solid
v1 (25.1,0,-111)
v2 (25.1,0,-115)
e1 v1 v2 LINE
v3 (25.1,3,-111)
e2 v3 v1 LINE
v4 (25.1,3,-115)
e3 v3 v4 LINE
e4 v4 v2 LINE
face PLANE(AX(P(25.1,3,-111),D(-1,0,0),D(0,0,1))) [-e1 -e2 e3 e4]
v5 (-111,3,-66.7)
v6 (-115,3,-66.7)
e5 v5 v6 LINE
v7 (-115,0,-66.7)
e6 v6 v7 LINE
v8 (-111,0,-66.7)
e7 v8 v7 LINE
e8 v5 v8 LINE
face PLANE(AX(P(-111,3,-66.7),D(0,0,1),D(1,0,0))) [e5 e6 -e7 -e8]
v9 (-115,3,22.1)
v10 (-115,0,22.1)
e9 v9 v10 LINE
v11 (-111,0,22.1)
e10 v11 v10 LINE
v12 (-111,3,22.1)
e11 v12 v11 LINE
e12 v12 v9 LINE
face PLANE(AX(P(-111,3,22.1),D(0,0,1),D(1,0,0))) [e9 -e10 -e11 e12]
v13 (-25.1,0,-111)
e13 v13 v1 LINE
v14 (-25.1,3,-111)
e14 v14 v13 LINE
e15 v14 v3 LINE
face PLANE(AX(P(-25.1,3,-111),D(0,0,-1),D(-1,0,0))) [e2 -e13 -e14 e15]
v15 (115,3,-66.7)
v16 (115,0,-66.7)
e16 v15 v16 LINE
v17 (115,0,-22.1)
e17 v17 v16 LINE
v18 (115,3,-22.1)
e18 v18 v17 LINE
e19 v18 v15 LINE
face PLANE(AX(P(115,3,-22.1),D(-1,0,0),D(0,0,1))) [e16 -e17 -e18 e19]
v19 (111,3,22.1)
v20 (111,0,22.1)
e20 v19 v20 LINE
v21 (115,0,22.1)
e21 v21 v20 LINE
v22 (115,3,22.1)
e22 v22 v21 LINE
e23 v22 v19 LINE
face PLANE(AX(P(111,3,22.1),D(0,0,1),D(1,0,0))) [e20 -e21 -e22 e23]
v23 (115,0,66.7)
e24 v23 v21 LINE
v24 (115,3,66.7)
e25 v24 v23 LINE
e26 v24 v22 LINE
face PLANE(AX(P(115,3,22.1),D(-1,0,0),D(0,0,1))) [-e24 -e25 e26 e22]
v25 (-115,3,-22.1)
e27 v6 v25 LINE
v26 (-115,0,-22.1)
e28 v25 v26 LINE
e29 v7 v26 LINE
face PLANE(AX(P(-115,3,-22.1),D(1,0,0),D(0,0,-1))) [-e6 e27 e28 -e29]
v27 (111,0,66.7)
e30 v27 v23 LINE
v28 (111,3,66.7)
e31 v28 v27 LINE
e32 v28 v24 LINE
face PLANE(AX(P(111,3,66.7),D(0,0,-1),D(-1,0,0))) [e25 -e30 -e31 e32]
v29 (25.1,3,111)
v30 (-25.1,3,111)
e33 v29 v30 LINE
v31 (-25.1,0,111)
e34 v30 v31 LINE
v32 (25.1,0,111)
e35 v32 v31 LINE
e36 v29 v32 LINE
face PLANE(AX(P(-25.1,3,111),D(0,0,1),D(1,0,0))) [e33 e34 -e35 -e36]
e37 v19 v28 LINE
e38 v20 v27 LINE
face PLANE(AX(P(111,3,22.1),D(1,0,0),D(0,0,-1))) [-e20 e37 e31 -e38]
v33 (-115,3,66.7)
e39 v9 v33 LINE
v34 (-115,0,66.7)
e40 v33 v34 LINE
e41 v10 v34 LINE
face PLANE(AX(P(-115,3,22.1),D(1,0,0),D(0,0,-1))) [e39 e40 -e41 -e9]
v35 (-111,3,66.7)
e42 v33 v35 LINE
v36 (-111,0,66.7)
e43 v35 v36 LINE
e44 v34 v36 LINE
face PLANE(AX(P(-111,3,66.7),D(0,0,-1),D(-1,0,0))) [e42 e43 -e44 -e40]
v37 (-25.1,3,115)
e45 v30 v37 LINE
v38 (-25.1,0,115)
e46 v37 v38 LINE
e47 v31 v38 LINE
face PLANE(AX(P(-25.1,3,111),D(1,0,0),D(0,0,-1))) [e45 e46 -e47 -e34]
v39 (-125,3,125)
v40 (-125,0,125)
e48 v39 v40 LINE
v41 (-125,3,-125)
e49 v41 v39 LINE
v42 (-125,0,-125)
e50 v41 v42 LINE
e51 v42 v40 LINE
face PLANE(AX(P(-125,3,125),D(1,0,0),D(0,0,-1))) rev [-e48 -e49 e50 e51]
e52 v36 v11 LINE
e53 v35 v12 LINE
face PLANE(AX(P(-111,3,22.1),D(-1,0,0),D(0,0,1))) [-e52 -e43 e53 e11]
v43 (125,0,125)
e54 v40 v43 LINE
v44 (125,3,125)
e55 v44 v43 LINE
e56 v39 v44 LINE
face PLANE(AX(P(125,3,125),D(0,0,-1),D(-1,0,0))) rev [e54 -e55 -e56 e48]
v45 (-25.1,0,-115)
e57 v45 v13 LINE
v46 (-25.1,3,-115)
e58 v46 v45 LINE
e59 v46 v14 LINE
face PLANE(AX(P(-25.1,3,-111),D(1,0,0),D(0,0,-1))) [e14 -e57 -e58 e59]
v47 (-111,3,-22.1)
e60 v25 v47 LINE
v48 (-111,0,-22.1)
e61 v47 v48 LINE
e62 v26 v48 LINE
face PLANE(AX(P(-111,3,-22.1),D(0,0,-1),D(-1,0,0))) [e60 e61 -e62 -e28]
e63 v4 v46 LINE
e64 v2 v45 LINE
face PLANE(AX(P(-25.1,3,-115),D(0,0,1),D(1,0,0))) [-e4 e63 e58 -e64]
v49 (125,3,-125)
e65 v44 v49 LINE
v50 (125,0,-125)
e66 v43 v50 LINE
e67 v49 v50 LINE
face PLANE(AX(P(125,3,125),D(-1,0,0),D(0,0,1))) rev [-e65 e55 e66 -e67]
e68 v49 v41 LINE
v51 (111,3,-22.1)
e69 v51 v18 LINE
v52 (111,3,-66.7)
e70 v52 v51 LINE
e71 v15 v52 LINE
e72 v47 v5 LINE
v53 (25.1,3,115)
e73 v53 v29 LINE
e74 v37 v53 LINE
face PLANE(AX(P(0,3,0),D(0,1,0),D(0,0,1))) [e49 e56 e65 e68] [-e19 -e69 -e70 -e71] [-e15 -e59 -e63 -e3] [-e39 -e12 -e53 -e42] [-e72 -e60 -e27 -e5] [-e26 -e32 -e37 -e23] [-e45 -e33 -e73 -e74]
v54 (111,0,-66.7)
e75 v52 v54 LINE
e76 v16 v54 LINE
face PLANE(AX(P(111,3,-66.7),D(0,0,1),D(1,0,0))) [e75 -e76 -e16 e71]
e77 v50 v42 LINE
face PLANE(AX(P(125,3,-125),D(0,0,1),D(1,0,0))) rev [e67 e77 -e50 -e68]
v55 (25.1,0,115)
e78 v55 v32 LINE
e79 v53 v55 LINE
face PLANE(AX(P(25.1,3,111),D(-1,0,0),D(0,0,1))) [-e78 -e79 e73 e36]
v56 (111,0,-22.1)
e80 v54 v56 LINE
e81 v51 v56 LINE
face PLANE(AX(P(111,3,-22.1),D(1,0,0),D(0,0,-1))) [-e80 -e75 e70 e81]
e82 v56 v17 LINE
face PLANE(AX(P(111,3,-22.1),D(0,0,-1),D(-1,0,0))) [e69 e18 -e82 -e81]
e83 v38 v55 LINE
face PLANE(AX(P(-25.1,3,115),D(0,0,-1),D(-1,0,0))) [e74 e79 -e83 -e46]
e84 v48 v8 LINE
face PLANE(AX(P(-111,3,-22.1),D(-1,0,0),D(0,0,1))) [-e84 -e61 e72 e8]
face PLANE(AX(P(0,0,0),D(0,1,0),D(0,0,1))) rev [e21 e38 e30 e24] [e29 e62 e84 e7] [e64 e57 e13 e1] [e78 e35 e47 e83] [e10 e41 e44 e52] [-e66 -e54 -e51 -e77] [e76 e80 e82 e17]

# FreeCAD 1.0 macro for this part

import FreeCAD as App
import Part
import Sketcher

V = App.Vector


def add_polygon(sketch, points):
    """Adds a closed chain of lines whose ends are joined by coincident constraints."""
    first, n = sketch.GeometryCount, len(points)
    for a, b in zip(points, points[1:] + points[:1]):
        sketch.addGeometry(Part.LineSegment(App.Vector(*a, 0), App.Vector(*b, 0)), False)
    for i in range(n):
        sketch.addConstraint(Sketcher.Constraint("Coincident", first + i, 2, first + (i + 1) % n, 1))

doc = App.newDocument("Part")
params = doc.addObject("Spreadsheet::Sheet", "Params")
for row, (alias, value) in enumerate([
    ("sketch1_width", "250 mm"),
    ("sketch1_width2", "4 mm"),
    ("sketch1_width3", "50.2 mm"),
    ("sketch1_height", "44.6 mm"),
    ("pad1_length", "3 mm"),
], start=1):
    params.set(f"A{row}", alias)
    params.set(f"B{row}", "=" + value)
    params.setAlias(f"B{row}", alias)

body = doc.addObject("PartDesign::Body", "Body")

sketch1 = body.newObject("Sketcher::SketchObject", "Sketch")
sketch1.AttachmentSupport = (doc.getObject("XZ_Plane"), [""])
sketch1.MapMode = "FlatFace"
add_polygon(sketch1, [(-125, -125), (-125, 125), (125, 125), (125, -125)])
add_polygon(sketch1, [(-111, 66.7), (-115, 66.7), (-115, 22.1), (-111, 22.1)])
add_polygon(sketch1, [(25.1, 115), (-25.1, 115), (-25.1, 111), (25.1, 111)])
add_polygon(sketch1, [(115, 66.7), (111, 66.7), (111, 22.1), (115, 22.1)])
add_polygon(sketch1, [(-111, -22.1), (-115, -22.1), (-115, -66.7), (-111, -66.7)])
add_polygon(sketch1, [(115, -22.1), (111, -22.1), (111, -66.7), (115, -66.7)])
add_polygon(sketch1, [(25.1, -111), (-25.1, -111), (-25.1, -115), (25.1, -115)])
sketch1.addConstraint([
    Sketcher.Constraint("Vertical", 0),
    Sketcher.Constraint("Horizontal", 1),
    Sketcher.Constraint("Vertical", 2),
    Sketcher.Constraint("Horizontal", 3),
    Sketcher.Constraint("Horizontal", 4),
    Sketcher.Constraint("Vertical", 5),
    Sketcher.Constraint("Horizontal", 6),
    Sketcher.Constraint("Vertical", 7),
    Sketcher.Constraint("Horizontal", 8),
    Sketcher.Constraint("Vertical", 9),
    Sketcher.Constraint("Horizontal", 10),
    Sketcher.Constraint("Vertical", 11),
    Sketcher.Constraint("Horizontal", 12),
    Sketcher.Constraint("Vertical", 13),
    Sketcher.Constraint("Horizontal", 14),
    Sketcher.Constraint("Vertical", 15),
    Sketcher.Constraint("Horizontal", 16),
    Sketcher.Constraint("Vertical", 17),
    Sketcher.Constraint("Horizontal", 18),
    Sketcher.Constraint("Vertical", 19),
    Sketcher.Constraint("Horizontal", 20),
    Sketcher.Constraint("Vertical", 21),
    Sketcher.Constraint("Horizontal", 22),
    Sketcher.Constraint("Vertical", 23),
    Sketcher.Constraint("Horizontal", 24),
    Sketcher.Constraint("Vertical", 25),
    Sketcher.Constraint("Horizontal", 26),
    Sketcher.Constraint("Vertical", 27),
    Sketcher.Constraint("Symmetric", 0, 2, 2, 2, -1, 1),
    Sketcher.Constraint("Symmetric", 14, 2, 16, 2, -1, 1),
    Sketcher.Constraint("Symmetric", 12, 2, 18, 2, -1, 1),
    Sketcher.Constraint("Symmetric", 6, 2, 20, 2, -1, 1),
    Sketcher.Constraint("Symmetric", 4, 2, 22, 2, -1, 1),
    Sketcher.Constraint("Symmetric", 10, 2, 24, 2, -1, 1),
    Sketcher.Constraint("Symmetric", 8, 2, 26, 2, -1, 1),
    Sketcher.Constraint("Symmetric", 7, 2, 12, 2, -2),
    Sketcher.Constraint("Symmetric", 5, 2, 14, 2, -2),
    Sketcher.Constraint("Vertical", 9, 2, 24, 2),
    Sketcher.Constraint("Equal", 3, 0),
    Sketcher.Constraint("Equal", 22, 9),
    Sketcher.Constraint("DistanceX", 1, 1, 1, 2, 250.0),
    Sketcher.Constraint("DistanceX", 4, 2, 4, 1, 4.0),
    Sketcher.Constraint("DistanceX", 8, 2, 8, 1, 50.2),
    Sketcher.Constraint("DistanceY", 5, 2, 5, 1, 44.6),
    Sketcher.Constraint("DistanceX", 4, 2, -1, 1, 115.0),
    Sketcher.Constraint("DistanceY", -1, 1, 8, 2, 115.0),
    Sketcher.Constraint("DistanceY", -1, 1, 4, 2, 66.7),
])
sketch1.setExpression("Constraints[68]", "Params.sketch1_width")
sketch1.setExpression("Constraints[69]", "Params.sketch1_width2")
sketch1.setExpression("Constraints[70]", "Params.sketch1_width3")
sketch1.setExpression("Constraints[71]", "Params.sketch1_height")
pad1 = body.newObject("PartDesign::Pad", "Pad")
pad1.Profile = sketch1
pad1.setExpression("Length", "Params.pad1_length")
pad1.Reversed = True

doc.recompute()
